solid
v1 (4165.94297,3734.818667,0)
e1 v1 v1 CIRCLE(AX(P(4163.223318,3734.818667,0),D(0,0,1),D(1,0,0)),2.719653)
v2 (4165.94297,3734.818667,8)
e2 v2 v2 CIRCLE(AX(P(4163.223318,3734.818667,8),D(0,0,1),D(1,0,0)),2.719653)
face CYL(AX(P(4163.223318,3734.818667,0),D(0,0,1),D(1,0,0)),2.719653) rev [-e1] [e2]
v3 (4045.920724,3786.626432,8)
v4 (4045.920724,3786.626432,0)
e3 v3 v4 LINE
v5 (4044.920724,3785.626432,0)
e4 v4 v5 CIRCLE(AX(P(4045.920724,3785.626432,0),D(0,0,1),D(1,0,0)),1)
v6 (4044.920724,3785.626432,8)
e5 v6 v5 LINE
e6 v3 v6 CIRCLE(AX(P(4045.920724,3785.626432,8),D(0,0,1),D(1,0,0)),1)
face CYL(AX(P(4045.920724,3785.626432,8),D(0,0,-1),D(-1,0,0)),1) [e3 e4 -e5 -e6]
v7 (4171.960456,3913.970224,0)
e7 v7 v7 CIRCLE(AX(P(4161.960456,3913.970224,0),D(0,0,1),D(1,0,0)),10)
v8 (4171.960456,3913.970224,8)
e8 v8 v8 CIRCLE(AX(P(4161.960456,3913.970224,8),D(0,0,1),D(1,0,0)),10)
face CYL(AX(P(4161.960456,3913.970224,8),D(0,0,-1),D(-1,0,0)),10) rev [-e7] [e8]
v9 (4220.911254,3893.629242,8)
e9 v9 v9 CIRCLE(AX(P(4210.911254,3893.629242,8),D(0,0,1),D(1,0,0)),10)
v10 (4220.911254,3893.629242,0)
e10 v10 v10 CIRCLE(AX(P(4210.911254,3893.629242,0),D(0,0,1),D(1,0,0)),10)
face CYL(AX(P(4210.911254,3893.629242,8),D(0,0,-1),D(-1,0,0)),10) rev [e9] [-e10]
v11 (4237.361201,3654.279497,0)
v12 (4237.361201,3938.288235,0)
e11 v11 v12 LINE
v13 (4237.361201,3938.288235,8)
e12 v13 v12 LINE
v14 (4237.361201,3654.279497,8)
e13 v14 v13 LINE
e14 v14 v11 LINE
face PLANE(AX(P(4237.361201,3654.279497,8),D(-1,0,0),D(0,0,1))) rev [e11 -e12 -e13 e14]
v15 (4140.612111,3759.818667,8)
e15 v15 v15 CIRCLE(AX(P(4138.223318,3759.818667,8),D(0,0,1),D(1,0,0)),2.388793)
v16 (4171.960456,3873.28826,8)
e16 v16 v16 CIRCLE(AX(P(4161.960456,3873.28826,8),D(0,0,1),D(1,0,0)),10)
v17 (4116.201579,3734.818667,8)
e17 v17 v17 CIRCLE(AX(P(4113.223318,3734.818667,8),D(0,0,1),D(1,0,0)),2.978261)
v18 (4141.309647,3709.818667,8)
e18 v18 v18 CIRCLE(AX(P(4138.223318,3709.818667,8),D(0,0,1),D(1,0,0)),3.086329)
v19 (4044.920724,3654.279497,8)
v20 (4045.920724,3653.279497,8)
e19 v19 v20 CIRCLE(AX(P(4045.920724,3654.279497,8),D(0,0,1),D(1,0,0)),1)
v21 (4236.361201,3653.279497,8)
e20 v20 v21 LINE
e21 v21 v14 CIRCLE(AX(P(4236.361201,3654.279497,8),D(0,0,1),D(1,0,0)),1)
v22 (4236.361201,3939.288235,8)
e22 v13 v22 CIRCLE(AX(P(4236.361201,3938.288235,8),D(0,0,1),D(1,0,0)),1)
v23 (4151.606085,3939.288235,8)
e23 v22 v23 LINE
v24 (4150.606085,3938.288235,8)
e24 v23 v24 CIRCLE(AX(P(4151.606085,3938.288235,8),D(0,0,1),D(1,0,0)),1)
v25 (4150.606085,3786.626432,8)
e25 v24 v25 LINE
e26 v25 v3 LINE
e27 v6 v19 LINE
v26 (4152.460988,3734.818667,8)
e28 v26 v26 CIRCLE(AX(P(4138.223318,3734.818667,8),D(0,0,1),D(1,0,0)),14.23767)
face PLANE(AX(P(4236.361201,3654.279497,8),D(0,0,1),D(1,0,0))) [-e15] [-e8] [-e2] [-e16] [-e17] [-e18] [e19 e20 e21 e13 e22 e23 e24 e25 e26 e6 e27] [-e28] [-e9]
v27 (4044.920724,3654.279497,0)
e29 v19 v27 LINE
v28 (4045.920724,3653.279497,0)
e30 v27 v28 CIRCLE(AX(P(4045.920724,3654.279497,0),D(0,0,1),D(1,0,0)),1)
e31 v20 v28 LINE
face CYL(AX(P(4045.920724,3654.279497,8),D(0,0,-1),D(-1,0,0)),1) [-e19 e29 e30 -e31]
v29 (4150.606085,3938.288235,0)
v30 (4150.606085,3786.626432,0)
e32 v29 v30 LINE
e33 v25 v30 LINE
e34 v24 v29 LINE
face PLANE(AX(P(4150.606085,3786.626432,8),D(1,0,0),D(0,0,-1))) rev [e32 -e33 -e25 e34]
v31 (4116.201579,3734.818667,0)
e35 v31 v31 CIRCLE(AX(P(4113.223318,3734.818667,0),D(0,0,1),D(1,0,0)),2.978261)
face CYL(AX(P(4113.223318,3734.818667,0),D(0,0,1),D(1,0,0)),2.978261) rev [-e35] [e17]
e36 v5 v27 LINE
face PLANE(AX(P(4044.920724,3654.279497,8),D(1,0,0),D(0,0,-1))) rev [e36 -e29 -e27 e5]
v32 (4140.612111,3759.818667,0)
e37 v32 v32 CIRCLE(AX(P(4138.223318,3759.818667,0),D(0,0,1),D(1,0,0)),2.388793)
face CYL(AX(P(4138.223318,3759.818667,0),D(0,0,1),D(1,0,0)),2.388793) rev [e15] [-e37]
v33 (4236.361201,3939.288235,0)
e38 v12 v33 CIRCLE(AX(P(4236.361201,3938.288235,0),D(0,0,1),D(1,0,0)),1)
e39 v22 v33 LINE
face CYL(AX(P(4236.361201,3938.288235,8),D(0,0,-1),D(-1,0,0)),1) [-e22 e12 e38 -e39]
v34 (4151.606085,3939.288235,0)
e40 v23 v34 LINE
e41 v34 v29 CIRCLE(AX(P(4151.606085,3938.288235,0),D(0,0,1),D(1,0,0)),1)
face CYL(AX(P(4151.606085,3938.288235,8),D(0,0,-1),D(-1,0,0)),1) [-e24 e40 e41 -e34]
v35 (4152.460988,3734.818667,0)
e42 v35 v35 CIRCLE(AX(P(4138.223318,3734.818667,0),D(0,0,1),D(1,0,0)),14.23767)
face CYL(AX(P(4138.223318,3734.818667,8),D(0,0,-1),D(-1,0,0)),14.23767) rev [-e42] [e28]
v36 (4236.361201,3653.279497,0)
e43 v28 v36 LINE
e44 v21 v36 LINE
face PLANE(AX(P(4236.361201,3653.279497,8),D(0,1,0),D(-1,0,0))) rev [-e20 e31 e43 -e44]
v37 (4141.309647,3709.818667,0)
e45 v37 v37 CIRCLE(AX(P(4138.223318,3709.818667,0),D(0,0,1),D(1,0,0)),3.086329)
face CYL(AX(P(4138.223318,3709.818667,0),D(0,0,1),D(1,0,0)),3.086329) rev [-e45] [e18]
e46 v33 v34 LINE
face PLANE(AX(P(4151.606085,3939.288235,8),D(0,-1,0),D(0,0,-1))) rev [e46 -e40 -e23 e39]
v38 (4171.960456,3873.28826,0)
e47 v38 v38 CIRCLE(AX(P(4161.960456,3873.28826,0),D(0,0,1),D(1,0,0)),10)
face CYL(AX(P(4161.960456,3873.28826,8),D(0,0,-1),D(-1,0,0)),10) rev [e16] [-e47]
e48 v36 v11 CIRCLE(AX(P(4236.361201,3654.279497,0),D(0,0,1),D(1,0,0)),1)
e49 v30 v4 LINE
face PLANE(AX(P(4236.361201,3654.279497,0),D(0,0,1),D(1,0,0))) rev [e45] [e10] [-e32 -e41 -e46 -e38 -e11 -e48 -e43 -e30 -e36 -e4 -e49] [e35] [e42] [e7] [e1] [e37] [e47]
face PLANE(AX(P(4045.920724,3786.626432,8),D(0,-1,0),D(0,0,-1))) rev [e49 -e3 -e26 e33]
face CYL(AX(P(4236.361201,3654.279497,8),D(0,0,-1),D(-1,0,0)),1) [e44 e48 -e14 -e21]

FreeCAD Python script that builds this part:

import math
import FreeCAD as App
import Part
import Sketcher

doc = App.newDocument("Part")
params = doc.addObject("Spreadsheet::Sheet", "Params")
for row, (alias, value) in enumerate([
    ("sketch1_diameter", "20 mm"),
    ("sketch1_radius", "1 mm"),
    ("pad1_length", "8 mm"),
], start=1):
    params.set(f"A{row}", alias)
    params.set(f"B{row}", "=" + value)
    params.setAlias(f"B{row}", alias)

body = doc.addObject("PartDesign::Body", "Body")

# Sketch on XY plane
sketch1 = body.newObject("Sketcher::SketchObject", "Sketch")
sketch1.AttachmentSupport = (doc.getObject("XY_Plane"), [""])
sketch1.MapMode = "FlatFace"
sketch1.addGeometry([
    Part.LineSegment(App.Vector(4045.9, 3653.3, 0), App.Vector(4236.4, 3653.3, 0)),  # 0
    Part.ArcOfCircle(Part.Circle(App.Vector(4236.4, 3654.3, 0), App.Vector(0, 0, 1), 1), math.radians(-90), math.radians(0)),  # 1
    Part.LineSegment(App.Vector(4237.4, 3654.3, 0), App.Vector(4237.4, 3938.3, 0)),  # 2
    Part.ArcOfCircle(Part.Circle(App.Vector(4236.4, 3938.3, 0), App.Vector(0, 0, 1), 1), math.radians(0), math.radians(90)),  # 3
    Part.LineSegment(App.Vector(4236.4, 3939.3, 0), App.Vector(4151.6, 3939.3, 0)),  # 4
    Part.ArcOfCircle(Part.Circle(App.Vector(4151.6, 3938.3, 0), App.Vector(0, 0, 1), 1), math.radians(90), math.radians(180)),  # 5
    Part.LineSegment(App.Vector(4150.6, 3938.3, 0), App.Vector(4150.6, 3786.6, 0)),  # 6
    Part.LineSegment(App.Vector(4150.6, 3786.6, 0), App.Vector(4045.9, 3786.6, 0)),  # 7
    Part.ArcOfCircle(Part.Circle(App.Vector(4045.9, 3785.6, 0), App.Vector(0, 0, 1), 1), math.radians(90), math.radians(180)),  # 8
    Part.LineSegment(App.Vector(4044.9, 3785.6, 0), App.Vector(4044.9, 3654.3, 0)),  # 9
    Part.ArcOfCircle(Part.Circle(App.Vector(4045.9, 3654.3, 0), App.Vector(0, 0, 1), 1), math.radians(-180), math.radians(-90)),  # 10
    Part.Circle(App.Vector(4138.2, 3734.8, 0), App.Vector(0, 0, 1), 14.2),  # 11
    Part.Circle(App.Vector(4210.9, 3893.6, 0), App.Vector(0, 0, 1), 10),  # 12
    Part.Circle(App.Vector(4162, 3873.3, 0), App.Vector(0, 0, 1), 10),  # 13
    Part.Circle(App.Vector(4162, 3914, 0), App.Vector(0, 0, 1), 10),  # 14
], False)
sketch1.addConstraint([
    Sketcher.Constraint("Tangent", 0, 2, 1, 1),
    Sketcher.Constraint("Tangent", 1, 2, 2, 1),
    Sketcher.Constraint("Tangent", 2, 2, 3, 1),
    Sketcher.Constraint("Tangent", 3, 2, 4, 1),
    Sketcher.Constraint("Tangent", 4, 2, 5, 1),
    Sketcher.Constraint("Tangent", 5, 2, 6, 1),
    Sketcher.Constraint("Coincident", 6, 2, 7, 1),
    Sketcher.Constraint("Tangent", 7, 2, 8, 1),
    Sketcher.Constraint("Tangent", 8, 2, 9, 1),
    Sketcher.Constraint("Tangent", 9, 2, 10, 1),
    Sketcher.Constraint("Tangent", 10, 2, 0, 1),
    Sketcher.Constraint("Horizontal", 0),
    Sketcher.Constraint("Vertical", 2),
    Sketcher.Constraint("Horizontal", 4),
    Sketcher.Constraint("Vertical", 6),
    Sketcher.Constraint("Horizontal", 7),
    Sketcher.Constraint("Vertical", 9),
    Sketcher.Constraint("Equal", 1, 3),
    Sketcher.Constraint("Equal", 3, 5),
    Sketcher.Constraint("Equal", 5, 8),
    Sketcher.Constraint("Equal", 8, 10),
    Sketcher.Constraint("Equal", 12, 13),
    Sketcher.Constraint("Equal", 13, 14),
    Sketcher.Constraint("Vertical", 13, 3, 14, 3),
    Sketcher.Constraint("Diameter", 12, 20.0),
    Sketcher.Constraint("Radius", 1, 1.0),
    Sketcher.Constraint("Diameter", 11, 28.475341),
    Sketcher.Constraint("DistanceX", 7, 2, 7, 1, 104.685361),
    Sketcher.Constraint("DistanceX", -1, 1, 1, 3, 4236.361201),
    Sketcher.Constraint("DistanceX", 0, 1, 0, 2, 190.440477),
    Sketcher.Constraint("DistanceY", 2, 1, 2, 2, 284.008737),
    Sketcher.Constraint("DistanceY", 6, 2, 6, 1, 151.661802),
    Sketcher.Constraint("DistanceY", -1, 1, 13, 3, 3873.28826),
    Sketcher.Constraint("DistanceY", 10, 3, 11, 3, 80.53917),
    Sketcher.Constraint("DistanceX", 5, 3, 12, 3, 59.305169),
    Sketcher.Constraint("DistanceY", 8, 3, 12, 3, 108.00281),
    Sketcher.Constraint("DistanceX", 5, 3, 13, 3, 10.354371),
    Sketcher.Constraint("DistanceX", 11, 3, 13, 3, 23.737138),
    Sketcher.Constraint("DistanceY", 14, 3, 5, 3, 24.31801),
    Sketcher.Constraint("DistanceY", -1, 1, 1, 3, 3654.279497),
])
sketch1.setExpression("Constraints[24]", "Params.sketch1_diameter")
sketch1.setExpression("Constraints[25]", "Params.sketch1_radius")
pad1 = body.newObject("PartDesign::Pad", "Pad")
pad1.Profile = sketch1
pad1.setExpression("Length", "Params.pad1_length")

# Sketch on XY plane
sketch2 = body.newObject("Sketcher::SketchObject", "Sketch001")
sketch2.AttachmentSupport = (doc.getObject("XY_Plane"), [""])
sketch2.MapMode = "FlatFace"
sketch2.AttachmentOffset = App.Placement(App.Vector(0, 0, 8), App.Rotation())
sketch2.addGeometry([
    Part.Circle(App.Vector(4138.2, 3759.8, 0), App.Vector(0, 0, 1), 2.4),
    Part.Circle(App.Vector(4163.2, 3734.8, 0), App.Vector(0, 0, 1), 2.7),
    Part.Circle(App.Vector(4138.2, 3709.8, 0), App.Vector(0, 0, 1), 3.1),
    Part.Circle(App.Vector(4113.2, 3734.8, 0), App.Vector(0, 0, 1), 3),
], False)
sketch2.addConstraint([
    Sketcher.Constraint("Horizontal", 1, 3, 3, 3),
    Sketcher.Constraint("Vertical", 0, 3, 2, 3),
    Sketcher.Constraint("DistanceX", 0, 3, 1, 3, 25.0),
    Sketcher.Constraint("DistanceY", 1, 3, 0, 3, 25.0),
    Sketcher.Constraint("DistanceY", 2, 3, 1, 3, 25.0),
    Sketcher.Constraint("DistanceX", 3, 3, 0, 3, 25.0),
    Sketcher.Constraint("Diameter", 3, 5.956522),
    Sketcher.Constraint("Diameter", 0, 4.777585),
    Sketcher.Constraint("Diameter", 1, 5.439305),
    Sketcher.Constraint("Diameter", 2, 6.172658),
    Sketcher.Constraint("DistanceX", -1, 1, 0, 3, 4138.223318),
    Sketcher.Constraint("DistanceY", -1, 1, 0, 3, 3759.818667),
])
pocket1 = body.newObject("PartDesign::Pocket", "Pocket")
pocket1.Profile = sketch2
pocket1.Type = "ThroughAll"

doc.recompute()
